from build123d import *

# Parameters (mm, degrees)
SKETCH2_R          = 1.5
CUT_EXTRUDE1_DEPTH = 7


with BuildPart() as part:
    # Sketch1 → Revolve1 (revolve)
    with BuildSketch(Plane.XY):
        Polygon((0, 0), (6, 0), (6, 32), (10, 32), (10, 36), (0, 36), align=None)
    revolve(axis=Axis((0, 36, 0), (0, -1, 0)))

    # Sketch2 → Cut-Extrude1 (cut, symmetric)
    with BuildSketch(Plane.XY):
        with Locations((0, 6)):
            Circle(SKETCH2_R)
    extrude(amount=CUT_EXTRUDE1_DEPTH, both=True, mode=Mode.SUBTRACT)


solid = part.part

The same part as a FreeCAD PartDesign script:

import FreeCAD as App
import Part
import Sketcher
Q = App.Units.Quantity

doc = App.newDocument("Part")
body = doc.addObject("PartDesign::Body", "Body")

sketch1 = body.newObject("Sketcher::SketchObject", "Sketch")
sketch1.AttachmentSupport = (doc.getObject("XY_Plane"), [""])
sketch1.MapMode = "FlatFace"
sketch1.addGeometry(Part.LineSegment(App.Vector(0, 0, 0), App.Vector(6, 0, 0)), False)
sketch1.addGeometry(Part.LineSegment(App.Vector(6, 0, 0), App.Vector(6, 32, 0)), False)
sketch1.addGeometry(Part.LineSegment(App.Vector(6, 32, 0), App.Vector(10, 32, 0)), False)
sketch1.addGeometry(Part.LineSegment(App.Vector(10, 32, 0), App.Vector(10, 36, 0)), False)
sketch1.addGeometry(Part.LineSegment(App.Vector(10, 36, 0), App.Vector(0, 36, 0)), False)
sketch1.addGeometry(Part.LineSegment(App.Vector(0, 36, 0), App.Vector(0, 0, 0)), False)
sketch1.addConstraint(Sketcher.Constraint("Coincident", 0, 2, 1, 1))
sketch1.addConstraint(Sketcher.Constraint("Coincident", 1, 2, 2, 1))
sketch1.addConstraint(Sketcher.Constraint("Coincident", 2, 2, 3, 1))
sketch1.addConstraint(Sketcher.Constraint("Coincident", 3, 2, 4, 1))
sketch1.addConstraint(Sketcher.Constraint("Coincident", 4, 2, 5, 1))
sketch1.addConstraint(Sketcher.Constraint("Coincident", 5, 2, 0, 1))
sketch1.addConstraint(Sketcher.Constraint("Horizontal", 0))
sketch1.addConstraint(Sketcher.Constraint("Vertical", 1))
sketch1.addConstraint(Sketcher.Constraint("Horizontal", 2))
sketch1.addConstraint(Sketcher.Constraint("Vertical", 3))
sketch1.addConstraint(Sketcher.Constraint("Horizontal", 4))
sketch1.addConstraint(Sketcher.Constraint("Vertical", 5))
sketch1.addConstraint(Sketcher.Constraint("Coincident", 5, 2, -1, 1))
sketch1.addConstraint(Sketcher.Constraint("Equal", 2, 3))
sketch1.addConstraint(Sketcher.Constraint("DistanceX", 0, 1, 0, 2, Q("6 mm")))
sketch1.addConstraint(Sketcher.Constraint("DistanceX", 2, 1, 2, 2, Q("4 mm")))
sketch1.addConstraint(Sketcher.Constraint("DistanceY", 1, 1, 1, 2, Q("32 mm")))
revolution = body.newObject("PartDesign::Revolution", "Revolution")
revolution.Profile = sketch1
revolution.ReferenceAxis = (sketch1, ["V_Axis"])
revolution.Angle = 360

sketch2 = body.newObject("Sketcher::SketchObject", "Sketch001")
sketch2.AttachmentSupport = (doc.getObject("XY_Plane"), [""])
sketch2.MapMode = "FlatFace"
sketch2.addGeometry(Part.Circle(App.Vector(0, 6, 0), App.Vector(0, 0, 1), 1.5), False)
sketch2.addConstraint(Sketcher.Constraint("PointOnObject", 0, 3, -2))
sketch2.addConstraint(Sketcher.Constraint("Diameter", 0, Q("3 mm")))
sketch2.addConstraint(Sketcher.Constraint("DistanceY", -1, 1, 0, 3, Q("6 mm")))
pocket1 = body.newObject("PartDesign::Pocket", "Pocket")
pocket1.Profile = sketch2
pocket1.Length = 14
pocket1.Midplane = True

doc.recompute()
